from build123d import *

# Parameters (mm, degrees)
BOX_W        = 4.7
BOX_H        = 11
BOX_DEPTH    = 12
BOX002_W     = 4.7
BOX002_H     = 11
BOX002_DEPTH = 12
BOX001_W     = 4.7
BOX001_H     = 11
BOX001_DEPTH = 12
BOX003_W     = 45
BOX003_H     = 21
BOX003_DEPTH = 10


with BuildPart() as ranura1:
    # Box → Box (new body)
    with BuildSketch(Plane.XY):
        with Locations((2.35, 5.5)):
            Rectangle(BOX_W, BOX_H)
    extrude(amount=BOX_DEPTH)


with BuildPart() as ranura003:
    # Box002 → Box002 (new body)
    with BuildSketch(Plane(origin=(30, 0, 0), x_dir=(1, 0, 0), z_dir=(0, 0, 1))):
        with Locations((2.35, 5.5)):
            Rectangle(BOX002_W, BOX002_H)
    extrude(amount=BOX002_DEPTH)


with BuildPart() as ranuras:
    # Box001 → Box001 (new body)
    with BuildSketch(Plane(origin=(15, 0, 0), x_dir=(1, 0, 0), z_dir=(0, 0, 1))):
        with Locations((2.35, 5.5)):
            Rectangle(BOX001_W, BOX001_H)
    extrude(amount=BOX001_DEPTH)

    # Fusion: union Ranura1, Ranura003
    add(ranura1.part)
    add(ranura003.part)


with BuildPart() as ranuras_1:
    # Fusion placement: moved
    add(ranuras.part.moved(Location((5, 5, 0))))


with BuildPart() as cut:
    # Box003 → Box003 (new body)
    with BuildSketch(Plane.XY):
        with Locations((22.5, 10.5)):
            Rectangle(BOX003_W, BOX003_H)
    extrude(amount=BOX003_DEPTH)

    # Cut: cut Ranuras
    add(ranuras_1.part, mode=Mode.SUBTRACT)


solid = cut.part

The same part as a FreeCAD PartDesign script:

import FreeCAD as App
import Part
import Sketcher
from FreeCAD import Vector
Q = App.Units.Quantity

doc = App.newDocument("Part")
params = doc.addObject("Spreadsheet::Sheet", "Params")
for row, (alias, value) in enumerate([
    ("sketch1_height", "11 mm"),
    ("sketch1_width", "4.7 mm"),
    ("pad1_length", "12 mm"),
    ("sketch2_height", "11 mm"),
    ("sketch2_width", "4.7 mm"),
    ("pad2_length", "12 mm"),
    ("sketch3_height", "11 mm"),
    ("sketch3_width", "4.7 mm"),
    ("pad3_length", "12 mm"),
    ("sketch4_width", "45 mm"),
    ("sketch4_height", "21 mm"),
    ("pad4_length", "10 mm"),
], start=1):
    params.set(f"A{row}", alias)
    params.set(f"B{row}", "=" + value)
    params.setAlias(f"B{row}", alias)

body = doc.addObject("PartDesign::Body", "Body")

sketch1 = body.newObject("Sketcher::SketchObject", "Sketch")
sketch1.AttachmentSupport = (doc.getObject("XY_Plane"), [""])
sketch1.MapMode = "FlatFace"
sketch1.addGeometry(Part.LineSegment(Vector(0, 11, 0), Vector(0, 0, 0)), False)
sketch1.addGeometry(Part.LineSegment(Vector(0, 0, 0), Vector(4.7, 0, 0)), False)
sketch1.addGeometry(Part.LineSegment(Vector(4.7, 0, 0), Vector(4.7, 11, 0)), False)
sketch1.addGeometry(Part.LineSegment(Vector(4.7, 11, 0), Vector(0, 11, 0)), False)
sketch1.addConstraint(Sketcher.Constraint("Coincident", 0, 2, 1, 1))
sketch1.addConstraint(Sketcher.Constraint("Coincident", 1, 2, 2, 1))
sketch1.addConstraint(Sketcher.Constraint("Coincident", 2, 2, 3, 1))
sketch1.addConstraint(Sketcher.Constraint("Coincident", 3, 2, 0, 1))
sketch1.addConstraint(Sketcher.Constraint("Vertical", 0))
sketch1.addConstraint(Sketcher.Constraint("Horizontal", 1))
sketch1.addConstraint(Sketcher.Constraint("Vertical", 2))
sketch1.addConstraint(Sketcher.Constraint("Horizontal", 3))
sketch1.addConstraint(Sketcher.Constraint("Coincident", 0, 2, -1, 1))
sketch1.addConstraint(Sketcher.Constraint("DistanceY", 0, 2, 0, 1, Q("11 mm")))
sketch1.addConstraint(Sketcher.Constraint("DistanceX", 1, 1, 1, 2, Q("4.7 mm")))
sketch1.setExpression("Constraints[9]", "Params.sketch1_height")
sketch1.setExpression("Constraints[10]", "Params.sketch1_width")
pad1 = body.newObject("PartDesign::Pad", "Pad")
pad1.Profile = sketch1
pad1.setExpression("Length", "Params.pad1_length")
body2 = doc.addObject("PartDesign::Body", "Body001")

sketch2 = body2.newObject("Sketcher::SketchObject", "Sketch001")
sketch2.AttachmentSupport = (doc.getObject("XY_Plane001"), [""])
sketch2.MapMode = "FlatFace"
sketch2.addGeometry(Part.LineSegment(Vector(30, 11, 0), Vector(30, 0, 0)), False)
sketch2.addGeometry(Part.LineSegment(Vector(30, 0, 0), Vector(34.7, 0, 0)), False)
sketch2.addGeometry(Part.LineSegment(Vector(34.7, 0, 0), Vector(34.7, 11, 0)), False)
sketch2.addGeometry(Part.LineSegment(Vector(34.7, 11, 0), Vector(30, 11, 0)), False)
sketch2.addConstraint(Sketcher.Constraint("Coincident", 0, 2, 1, 1))
sketch2.addConstraint(Sketcher.Constraint("Coincident", 1, 2, 2, 1))
sketch2.addConstraint(Sketcher.Constraint("Coincident", 2, 2, 3, 1))
sketch2.addConstraint(Sketcher.Constraint("Coincident", 3, 2, 0, 1))
sketch2.addConstraint(Sketcher.Constraint("Vertical", 0))
sketch2.addConstraint(Sketcher.Constraint("Horizontal", 1))
sketch2.addConstraint(Sketcher.Constraint("Vertical", 2))
sketch2.addConstraint(Sketcher.Constraint("Horizontal", 3))
sketch2.addConstraint(Sketcher.Constraint("PointOnObject", 0, 2, -1))
sketch2.addConstraint(Sketcher.Constraint("DistanceY", 0, 2, 0, 1, Q("11 mm")))
sketch2.addConstraint(Sketcher.Constraint("DistanceX", 1, 1, 1, 2, Q("4.7 mm")))
sketch2.addConstraint(Sketcher.Constraint("DistanceX", -1, 1, 0, 2, Q("30 mm")))
sketch2.setExpression("Constraints[9]", "Params.sketch2_height")
sketch2.setExpression("Constraints[10]", "Params.sketch2_width")
pad2 = body2.newObject("PartDesign::Pad", "Pad001")
pad2.Profile = sketch2
pad2.setExpression("Length", "Params.pad2_length")
body3 = doc.addObject("PartDesign::Body", "Body002")
body3.AllowCompound = True

sketch3 = body3.newObject("Sketcher::SketchObject", "Sketch002")
sketch3.AttachmentSupport = (doc.getObject("XY_Plane002"), [""])
sketch3.MapMode = "FlatFace"
sketch3.addGeometry(Part.LineSegment(Vector(15, 11, 0), Vector(15, 0, 0)), False)
sketch3.addGeometry(Part.LineSegment(Vector(15, 0, 0), Vector(19.7, 0, 0)), False)
sketch3.addGeometry(Part.LineSegment(Vector(19.7, 0, 0), Vector(19.7, 11, 0)), False)
sketch3.addGeometry(Part.LineSegment(Vector(19.7, 11, 0), Vector(15, 11, 0)), False)
sketch3.addConstraint(Sketcher.Constraint("Coincident", 0, 2, 1, 1))
sketch3.addConstraint(Sketcher.Constraint("Coincident", 1, 2, 2, 1))
sketch3.addConstraint(Sketcher.Constraint("Coincident", 2, 2, 3, 1))
sketch3.addConstraint(Sketcher.Constraint("Coincident", 3, 2, 0, 1))
sketch3.addConstraint(Sketcher.Constraint("Vertical", 0))
sketch3.addConstraint(Sketcher.Constraint("Horizontal", 1))
sketch3.addConstraint(Sketcher.Constraint("Vertical", 2))
sketch3.addConstraint(Sketcher.Constraint("Horizontal", 3))
sketch3.addConstraint(Sketcher.Constraint("PointOnObject", 0, 2, -1))
sketch3.addConstraint(Sketcher.Constraint("DistanceY", 0, 2, 0, 1, Q("11 mm")))
sketch3.addConstraint(Sketcher.Constraint("DistanceX", 1, 1, 1, 2, Q("4.7 mm")))
sketch3.addConstraint(Sketcher.Constraint("DistanceX", -1, 1, 0, 2, Q("15 mm")))
sketch3.setExpression("Constraints[9]", "Params.sketch3_height")
sketch3.setExpression("Constraints[10]", "Params.sketch3_width")
pad3 = body3.newObject("PartDesign::Pad", "Pad002")
pad3.Profile = sketch3
pad3.setExpression("Length", "Params.pad3_length")
doc.recompute()

boolean = body3.newObject("PartDesign::Boolean", "Boolean")
boolean.Type = "Fuse"
boolean.addObjects([body])
doc.recompute()

boolean2 = body3.newObject("PartDesign::Boolean", "Boolean001")
boolean2.Type = "Fuse"
boolean2.addObjects([body2])
body4 = doc.addObject("PartDesign::Body", "Body003")
body4.AllowCompound = True
doc.recompute()

body3.Placement = App.Placement(Vector(5, 5, 0), App.Rotation(Vector(0, 0, 1), 0))
boolean3 = body4.newObject("PartDesign::Boolean", "Boolean002")
boolean3.Type = "Fuse"
boolean3.addObjects([body3])
body5 = doc.addObject("PartDesign::Body", "Body004")

sketch4 = body5.newObject("Sketcher::SketchObject", "Sketch003")
sketch4.AttachmentSupport = (doc.getObject("XY_Plane004"), [""])
sketch4.MapMode = "FlatFace"
sketch4.addGeometry(Part.LineSegment(Vector(0, 21, 0), Vector(0, 0, 0)), False)
sketch4.addGeometry(Part.LineSegment(Vector(0, 0, 0), Vector(45, 0, 0)), False)
sketch4.addGeometry(Part.LineSegment(Vector(45, 0, 0), Vector(45, 21, 0)), False)
sketch4.addGeometry(Part.LineSegment(Vector(45, 21, 0), Vector(0, 21, 0)), False)
sketch4.addConstraint(Sketcher.Constraint("Coincident", 0, 2, 1, 1))
sketch4.addConstraint(Sketcher.Constraint("Coincident", 1, 2, 2, 1))
sketch4.addConstraint(Sketcher.Constraint("Coincident", 2, 2, 3, 1))
sketch4.addConstraint(Sketcher.Constraint("Coincident", 3, 2, 0, 1))
sketch4.addConstraint(Sketcher.Constraint("Vertical", 0))
sketch4.addConstraint(Sketcher.Constraint("Horizontal", 1))
sketch4.addConstraint(Sketcher.Constraint("Vertical", 2))
sketch4.addConstraint(Sketcher.Constraint("Horizontal", 3))
sketch4.addConstraint(Sketcher.Constraint("Coincident", 0, 2, -1, 1))
sketch4.addConstraint(Sketcher.Constraint("DistanceX", 1, 1, 1, 2, Q("45 mm")))
sketch4.addConstraint(Sketcher.Constraint("DistanceY", 0, 2, 0, 1, Q("21 mm")))
sketch4.setExpression("Constraints[9]", "Params.sketch4_width")
sketch4.setExpression("Constraints[10]", "Params.sketch4_height")
pad4 = body5.newObject("PartDesign::Pad", "Pad003")
pad4.Profile = sketch4
pad4.setExpression("Length", "Params.pad4_length")
doc.recompute()

boolean4 = body5.newObject("PartDesign::Boolean", "Boolean003")
boolean4.Type = "Cut"
boolean4.addObjects([body4])

doc.recompute()
